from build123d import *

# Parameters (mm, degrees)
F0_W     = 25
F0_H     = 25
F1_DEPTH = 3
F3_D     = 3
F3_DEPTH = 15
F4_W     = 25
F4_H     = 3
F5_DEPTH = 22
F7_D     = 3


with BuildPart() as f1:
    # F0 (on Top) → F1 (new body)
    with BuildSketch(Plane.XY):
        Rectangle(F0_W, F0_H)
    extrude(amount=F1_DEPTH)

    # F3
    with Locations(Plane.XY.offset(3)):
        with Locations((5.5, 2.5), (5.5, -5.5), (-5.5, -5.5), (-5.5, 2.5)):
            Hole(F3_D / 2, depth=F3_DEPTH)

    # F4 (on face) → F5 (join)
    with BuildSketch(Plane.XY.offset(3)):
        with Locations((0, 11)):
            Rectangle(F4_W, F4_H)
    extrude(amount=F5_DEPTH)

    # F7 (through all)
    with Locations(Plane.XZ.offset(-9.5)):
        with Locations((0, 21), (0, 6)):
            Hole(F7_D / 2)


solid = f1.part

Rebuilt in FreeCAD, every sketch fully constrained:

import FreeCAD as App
import Part
import Sketcher
from FreeCAD import Vector
Q = App.Units.Quantity


def add_polygon(sketch, points):
    """Adds a closed chain of lines whose ends are joined by coincident constraints."""
    first, n = sketch.GeometryCount, len(points)
    for a, b in zip(points, points[1:] + points[:1]):
        sketch.addGeometry(Part.LineSegment(App.Vector(*a, 0), App.Vector(*b, 0)), False)
    for i in range(n):
        sketch.addConstraint(Sketcher.Constraint("Coincident", first + i, 2, first + (i + 1) % n, 1))

doc = App.newDocument("Part")
params = doc.addObject("Spreadsheet::Sheet", "Params")
for row, (alias, value) in enumerate([
    ("sketch1_width", "25 mm"),
    ("pad1_length", "3 mm"),
    ("sketch2_diameter", "3 mm"),
    ("hole_diameter", "3 mm"),
    ("hole_depth", "15 mm"),
    ("sketch3_width", "25 mm"),
    ("sketch3_height", "3 mm"),
    ("pad2_length", "22 mm"),
    ("sketch4_diameter", "3 mm"),
    ("hole2_diameter", "3 mm"),
], start=1):
    params.set(f"A{row}", alias)
    params.set(f"B{row}", "=" + value)
    params.setAlias(f"B{row}", alias)

body = doc.addObject("PartDesign::Body", "Body")

# Sketch on XY plane
sketch1 = body.newObject("Sketcher::SketchObject", "Sketch")
sketch1.AttachmentSupport = (doc.getObject("XY_Plane"), [""])
sketch1.MapMode = "FlatFace"
add_polygon(sketch1, [(-12.5, 12.5), (-12.5, -12.5), (12.5, -12.5), (12.5, 12.5)])  # lines 0-3
sketch1.addConstraint([
    Sketcher.Constraint("Vertical", 0),
    Sketcher.Constraint("Horizontal", 1),
    Sketcher.Constraint("Vertical", 2),
    Sketcher.Constraint("Horizontal", 3),
    Sketcher.Constraint("Symmetric", 0, 2, 2, 2, -1, 1),
    Sketcher.Constraint("Equal", 3, 0),
    Sketcher.Constraint("DistanceX", 1, 1, 1, 2, Q("25 mm")),
])
sketch1.setExpression("Constraints[10]", "Params.sketch1_width")
pad1 = body.newObject("PartDesign::Pad", "Pad")
pad1.Profile = sketch1
pad1.setExpression("Length", "Params.pad1_length")

# Sketch on XY plane
sketch2 = body.newObject("Sketcher::SketchObject", "Sketch001")
sketch2.AttachmentSupport = (doc.getObject("XY_Plane"), [""])
sketch2.MapMode = "FlatFace"
sketch2.AttachmentOffset = App.Placement(Vector(0, 0, 3), App.Rotation())
sketch2.addGeometry([
    Part.Circle(Vector(5.5, 2.5, 0), Vector(0, 0, 1), 1.5),
    Part.Circle(Vector(5.5, -5.5, 0), Vector(0, 0, 1), 1.5),
    Part.Circle(Vector(-5.5, -5.5, 0), Vector(0, 0, 1), 1.5),
    Part.Circle(Vector(-5.5, 2.5, 0), Vector(0, 0, 1), 1.5),
], False)
sketch2.addConstraint([
    Sketcher.Constraint("Equal", 0, 1),
    Sketcher.Constraint("Equal", 1, 2),
    Sketcher.Constraint("Equal", 2, 3),
    Sketcher.Constraint("Symmetric", 1, 3, 2, 3, -2),
    Sketcher.Constraint("Symmetric", 0, 3, 3, 3, -2),
    Sketcher.Constraint("Vertical", 0, 3, 1, 3),
    Sketcher.Constraint("Diameter", 0, Q("3 mm")),
    Sketcher.Constraint("DistanceY", 1, 3, 0, 3, Q("8 mm")),
    Sketcher.Constraint("DistanceX", 2, 3, 1, 3, Q("11 mm")),
    Sketcher.Constraint("DistanceY", -1, 1, 0, 3, Q("2.5 mm")),
])
sketch2.setExpression("Constraints[6]", "Params.sketch2_diameter")
doc.recompute()
hole = body.newObject("PartDesign::Hole", "Hole")
hole.Profile = sketch2
hole.ThreadType = "None"
hole.setExpression("Diameter", "Params.hole_diameter")
hole.DepthType = "Dimension"
hole.setExpression("Depth", "Params.hole_depth")
hole.DrillPoint = "Flat"

# Sketch on XY plane
sketch3 = body.newObject("Sketcher::SketchObject", "Sketch002")
sketch3.AttachmentSupport = (doc.getObject("XY_Plane"), [""])
sketch3.MapMode = "FlatFace"
sketch3.AttachmentOffset = App.Placement(Vector(0, 0, 3), App.Rotation())
add_polygon(sketch3, [(-12.5, 12.5), (-12.5, 9.5), (12.5, 9.5), (12.5, 12.5)])  # lines 0-3
sketch3.addConstraint([
    Sketcher.Constraint("Vertical", 0),
    Sketcher.Constraint("Horizontal", 1),
    Sketcher.Constraint("Vertical", 2),
    Sketcher.Constraint("Horizontal", 3),
    Sketcher.Constraint("DistanceX", 1, 1, 1, 2, Q("25 mm")),
    Sketcher.Constraint("DistanceY", 0, 2, 0, 1, Q("3 mm")),
    Sketcher.Constraint("DistanceX", 0, 2, -1, 1, Q("12.5 mm")),
    Sketcher.Constraint("DistanceY", -1, 1, 0, 2, Q("9.5 mm")),
])
sketch3.setExpression("Constraints[8]", "Params.sketch3_width")
sketch3.setExpression("Constraints[9]", "Params.sketch3_height")
pad2 = body.newObject("PartDesign::Pad", "Pad001")
pad2.Profile = sketch3
pad2.setExpression("Length", "Params.pad2_length")

# Sketch on XZ plane
sketch4 = body.newObject("Sketcher::SketchObject", "Sketch003")
sketch4.AttachmentSupport = (doc.getObject("XZ_Plane"), [""])
sketch4.MapMode = "FlatFace"
sketch4.AttachmentOffset = App.Placement(Vector(0, 0, -9.5), App.Rotation())
sketch4.addGeometry([
    Part.Circle(Vector(0, 21, 0), Vector(0, 0, 1), 1.5),
    Part.Circle(Vector(0, 6, 0), Vector(0, 0, 1), 1.5),
], False)
sketch4.addConstraint([
    Sketcher.Constraint("Equal", 0, 1),
    Sketcher.Constraint("PointOnObject", 0, 3, -2),
    Sketcher.Constraint("PointOnObject", 1, 3, -2),
    Sketcher.Constraint("Diameter", 0, Q("3 mm")),
    Sketcher.Constraint("DistanceY", -1, 1, 0, 3, Q("21 mm")),
    Sketcher.Constraint("DistanceY", -1, 1, 1, 3, Q("6 mm")),
])
sketch4.setExpression("Constraints[3]", "Params.sketch4_diameter")
doc.recompute()
hole2 = body.newObject("PartDesign::Hole", "Hole001")
hole2.Profile = sketch4
hole2.ThreadType = "None"
hole2.setExpression("Diameter", "Params.hole2_diameter")
hole2.DepthType = "ThroughAll"

doc.recompute()
